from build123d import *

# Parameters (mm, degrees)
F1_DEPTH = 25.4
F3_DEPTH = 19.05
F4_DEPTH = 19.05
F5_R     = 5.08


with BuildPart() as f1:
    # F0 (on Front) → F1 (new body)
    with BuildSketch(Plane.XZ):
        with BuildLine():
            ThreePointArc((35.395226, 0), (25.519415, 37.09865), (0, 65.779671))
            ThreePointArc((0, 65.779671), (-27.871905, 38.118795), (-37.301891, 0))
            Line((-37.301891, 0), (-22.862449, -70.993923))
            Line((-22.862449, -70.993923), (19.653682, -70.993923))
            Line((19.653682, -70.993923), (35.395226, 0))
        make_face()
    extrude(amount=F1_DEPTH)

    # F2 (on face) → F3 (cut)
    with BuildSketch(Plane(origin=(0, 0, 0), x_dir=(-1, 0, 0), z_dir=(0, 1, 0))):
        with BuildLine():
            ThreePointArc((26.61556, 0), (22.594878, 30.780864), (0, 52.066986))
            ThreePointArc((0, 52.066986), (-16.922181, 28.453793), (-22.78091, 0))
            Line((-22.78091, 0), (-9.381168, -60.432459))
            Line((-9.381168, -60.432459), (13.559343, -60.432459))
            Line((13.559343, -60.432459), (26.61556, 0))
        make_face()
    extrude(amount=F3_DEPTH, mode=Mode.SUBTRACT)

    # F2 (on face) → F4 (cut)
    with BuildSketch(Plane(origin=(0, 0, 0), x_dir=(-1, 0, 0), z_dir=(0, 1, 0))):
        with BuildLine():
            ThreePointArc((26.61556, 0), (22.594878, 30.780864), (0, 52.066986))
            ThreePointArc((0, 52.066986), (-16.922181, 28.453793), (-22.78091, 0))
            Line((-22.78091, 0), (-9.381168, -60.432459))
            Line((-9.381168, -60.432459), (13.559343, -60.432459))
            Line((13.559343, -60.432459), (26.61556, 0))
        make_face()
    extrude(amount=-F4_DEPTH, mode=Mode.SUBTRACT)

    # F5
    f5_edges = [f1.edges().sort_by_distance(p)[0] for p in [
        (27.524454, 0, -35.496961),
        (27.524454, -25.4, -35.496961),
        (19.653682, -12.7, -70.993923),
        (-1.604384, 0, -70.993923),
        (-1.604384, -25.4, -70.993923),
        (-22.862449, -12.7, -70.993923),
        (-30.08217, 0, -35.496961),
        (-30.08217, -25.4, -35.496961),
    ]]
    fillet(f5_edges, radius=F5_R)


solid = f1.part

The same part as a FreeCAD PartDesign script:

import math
import FreeCAD as App
import Part
import Sketcher
from FreeCAD import Vector
Q = App.Units.Quantity


def edges_at(feature, points):
    """Names of the edges that pass closest to the given points."""
    edges = feature.Shape.Edges
    near = lambda p: min(range(len(edges)), key=lambda i: edges[i].distToShape(Part.Vertex(*p))[0])
    return sorted({f"Edge{near(p) + 1}" for p in points})

doc = App.newDocument("Part")
body = doc.addObject("PartDesign::Body", "Body")

# Sketch on XZ plane
sketch1 = doc.addObject("Sketcher::SketchObject", "Sketch")
body.addObject(sketch1)
sketch1.AttachmentSupport = (doc.XZ_Plane, [""])
sketch1.MapMode = "FlatFace"
sketch1.addGeometry([
    Part.ArcOfCircle(Part.Circle(Vector(-48, -2, 0), Vector(0, 0, 1), 83), math.radians(2), math.radians(55)),  # 0
    Part.ArcOfCircle(Part.Circle(Vector(35, 2, 0), Vector(0, 0, 1), 73), math.radians(119), math.radians(182)),  # 1
    Part.LineSegment(Vector(-37, 0, 0), Vector(-23, -71, 0)),  # 2
    Part.LineSegment(Vector(-23, -71, 0), Vector(20, -71, 0)),  # 3
    Part.LineSegment(Vector(20, -71, 0), Vector(35, 0, 0)),  # 4
], False)
sketch1.addConstraint([
    Sketcher.Constraint("Coincident", 0, 2, 1, 1),
    Sketcher.Constraint("Coincident", 1, 2, 2, 1),
    Sketcher.Constraint("Coincident", 2, 2, 3, 1),
    Sketcher.Constraint("Coincident", 3, 2, 4, 1),
    Sketcher.Constraint("Coincident", 4, 2, 0, 1),
    Sketcher.Constraint("Horizontal", 3),
    Sketcher.Constraint("PointOnObject", 0, 2, -2),
    Sketcher.Constraint("PointOnObject", 1, 2, -1),
    Sketcher.Constraint("PointOnObject", 4, 2, -1),
    Sketcher.Constraint("Radius", 0, Q("82.965369 mm")),
    Sketcher.Constraint("Radius", 1, Q("72.731675 mm")),
    Sketcher.Constraint("DistanceX", 3, 1, 3, 2, Q("42.516131 mm")),
    Sketcher.Constraint("Distance", 2, Q("72.447461 mm")),
    Sketcher.Constraint("DistanceX", -1, 1, 1, 3, Q("35.395229 mm")),
    Sketcher.Constraint("DistanceY", -1, 1, 0, 2, Q("65.779671 mm")),
    Sketcher.Constraint("DistanceX", 2, 2, -1, 1, Q("22.862449 mm")),
    Sketcher.Constraint("DistanceX", 0, 3, 3, 2, Q("67.194278 mm")),
])
pad1 = doc.addObject("PartDesign::Pad", "Pad")
body.addObject(pad1)
pad1.Profile = sketch1
pad1.Length = Q("1 in")

# Sketch on XZ plane
sketch2 = doc.addObject("Sketcher::SketchObject", "Sketch001")
body.addObject(sketch2)
sketch2.AttachmentSupport = (doc.XZ_Plane, [""])
sketch2.MapMode = "FlatFace"
sketch2.addGeometry([
    Part.ArcOfCircle(Part.Circle(Vector(19, 10, 0), Vector(0, 0, 1), 46), math.radians(114), math.radians(192)),  # 0
    Part.ArcOfCircle(Part.Circle(Vector(-47, 0, 0), Vector(0, 0, 1), 70), math.radians(0), math.radians(48)),  # 1
    Part.LineSegment(Vector(23, 0, 0), Vector(9, -60, 0)),  # 2
    Part.LineSegment(Vector(9, -60, 0), Vector(-14, -60, 0)),  # 3
    Part.LineSegment(Vector(-14, -60, 0), Vector(-27, 0, 0)),  # 4
], False)
sketch2.addConstraint([
    Sketcher.Constraint("Coincident", 0, 1, 1, 2),
    Sketcher.Constraint("Coincident", 1, 1, 2, 1),
    Sketcher.Constraint("Coincident", 2, 2, 3, 1),
    Sketcher.Constraint("Coincident", 3, 2, 4, 1),
    Sketcher.Constraint("Tangent", 4, 2, 0, 2),
    Sketcher.Constraint("Horizontal", 3),
    Sketcher.Constraint("PointOnObject", 0, 1, -2),
    Sketcher.Constraint("PointOnObject", 1, 1, -1),
    Sketcher.Constraint("PointOnObject", 4, 2, -1),
    Sketcher.Constraint("Radius", 0, Q("46.194391 mm")),
    Sketcher.Constraint("Radius", 1, Q("69.885594 mm")),
    Sketcher.Constraint("DistanceX", 3, 2, 3, 1, Q("22.940511 mm")),
    Sketcher.Constraint("Distance", 4, Q("61.826749 mm")),
    Sketcher.Constraint("DistanceX", -1, 1, 1, 1, Q("22.78091 mm")),
    Sketcher.Constraint("DistanceX", -1, 1, 2, 2, Q("9.381168 mm")),
    Sketcher.Constraint("DistanceY", 2, 2, -1, 1, Q("60.432459 mm")),
])
pocket1 = doc.addObject("PartDesign::Pocket", "Pocket")
body.addObject(pocket1)
pocket1.Profile = sketch2
pocket1.Length = Q("0.75 in")

# Sketch on XZ plane
sketch3 = doc.addObject("Sketcher::SketchObject", "Sketch002")
body.addObject(sketch3)
sketch3.AttachmentSupport = (doc.XZ_Plane, [""])
sketch3.MapMode = "FlatFace"
sketch3.addGeometry([
    Part.ArcOfCircle(Part.Circle(Vector(19, 10, 0), Vector(0, 0, 1), 46), math.radians(114), math.radians(192)),  # 0
    Part.ArcOfCircle(Part.Circle(Vector(-47, 0, 0), Vector(0, 0, 1), 70), math.radians(0), math.radians(48)),  # 1
    Part.LineSegment(Vector(23, 0, 0), Vector(9, -60, 0)),  # 2
    Part.LineSegment(Vector(9, -60, 0), Vector(-14, -60, 0)),  # 3
    Part.LineSegment(Vector(-14, -60, 0), Vector(-27, 0, 0)),  # 4
], False)
sketch3.addConstraint([
    Sketcher.Constraint("Coincident", 0, 1, 1, 2),
    Sketcher.Constraint("Coincident", 1, 1, 2, 1),
    Sketcher.Constraint("Coincident", 2, 2, 3, 1),
    Sketcher.Constraint("Coincident", 3, 2, 4, 1),
    Sketcher.Constraint("Tangent", 4, 2, 0, 2),
    Sketcher.Constraint("Horizontal", 3),
    Sketcher.Constraint("PointOnObject", 0, 1, -2),
    Sketcher.Constraint("PointOnObject", 1, 1, -1),
    Sketcher.Constraint("PointOnObject", 4, 2, -1),
    Sketcher.Constraint("Radius", 0, Q("46.194391 mm")),
    Sketcher.Constraint("Radius", 1, Q("69.885594 mm")),
    Sketcher.Constraint("DistanceX", 3, 2, 3, 1, Q("22.940511 mm")),
    Sketcher.Constraint("Distance", 4, Q("61.826749 mm")),
    Sketcher.Constraint("DistanceX", -1, 1, 1, 1, Q("22.78091 mm")),
    Sketcher.Constraint("DistanceX", -1, 1, 2, 2, Q("9.381168 mm")),
    Sketcher.Constraint("DistanceY", 2, 2, -1, 1, Q("60.432459 mm")),
])
pocket2 = doc.addObject("PartDesign::Pocket", "Pocket001")
body.addObject(pocket2)
pocket2.Profile = sketch3
pocket2.Length = Q("0.75 in")
pocket2.Reversed = True
doc.recompute()

fillet = doc.addObject("PartDesign::Fillet", "Fillet")
body.addObject(fillet)
fillet.Base = (pocket2, edges_at(pocket2, [
    (27.524, 0, -35.497),
    (27.524, -25.4, -35.497),
    (19.654, -12.7, -70.994),
    (-1.604, 0, -70.994),
    (-1.604, -25.4, -70.994),
    (-22.862, -12.7, -70.994),
    (-30.082, 0, -35.497),
    (-30.082, -25.4, -35.497),
]))
fillet.Radius = Q("0.2 in")

doc.recompute()
